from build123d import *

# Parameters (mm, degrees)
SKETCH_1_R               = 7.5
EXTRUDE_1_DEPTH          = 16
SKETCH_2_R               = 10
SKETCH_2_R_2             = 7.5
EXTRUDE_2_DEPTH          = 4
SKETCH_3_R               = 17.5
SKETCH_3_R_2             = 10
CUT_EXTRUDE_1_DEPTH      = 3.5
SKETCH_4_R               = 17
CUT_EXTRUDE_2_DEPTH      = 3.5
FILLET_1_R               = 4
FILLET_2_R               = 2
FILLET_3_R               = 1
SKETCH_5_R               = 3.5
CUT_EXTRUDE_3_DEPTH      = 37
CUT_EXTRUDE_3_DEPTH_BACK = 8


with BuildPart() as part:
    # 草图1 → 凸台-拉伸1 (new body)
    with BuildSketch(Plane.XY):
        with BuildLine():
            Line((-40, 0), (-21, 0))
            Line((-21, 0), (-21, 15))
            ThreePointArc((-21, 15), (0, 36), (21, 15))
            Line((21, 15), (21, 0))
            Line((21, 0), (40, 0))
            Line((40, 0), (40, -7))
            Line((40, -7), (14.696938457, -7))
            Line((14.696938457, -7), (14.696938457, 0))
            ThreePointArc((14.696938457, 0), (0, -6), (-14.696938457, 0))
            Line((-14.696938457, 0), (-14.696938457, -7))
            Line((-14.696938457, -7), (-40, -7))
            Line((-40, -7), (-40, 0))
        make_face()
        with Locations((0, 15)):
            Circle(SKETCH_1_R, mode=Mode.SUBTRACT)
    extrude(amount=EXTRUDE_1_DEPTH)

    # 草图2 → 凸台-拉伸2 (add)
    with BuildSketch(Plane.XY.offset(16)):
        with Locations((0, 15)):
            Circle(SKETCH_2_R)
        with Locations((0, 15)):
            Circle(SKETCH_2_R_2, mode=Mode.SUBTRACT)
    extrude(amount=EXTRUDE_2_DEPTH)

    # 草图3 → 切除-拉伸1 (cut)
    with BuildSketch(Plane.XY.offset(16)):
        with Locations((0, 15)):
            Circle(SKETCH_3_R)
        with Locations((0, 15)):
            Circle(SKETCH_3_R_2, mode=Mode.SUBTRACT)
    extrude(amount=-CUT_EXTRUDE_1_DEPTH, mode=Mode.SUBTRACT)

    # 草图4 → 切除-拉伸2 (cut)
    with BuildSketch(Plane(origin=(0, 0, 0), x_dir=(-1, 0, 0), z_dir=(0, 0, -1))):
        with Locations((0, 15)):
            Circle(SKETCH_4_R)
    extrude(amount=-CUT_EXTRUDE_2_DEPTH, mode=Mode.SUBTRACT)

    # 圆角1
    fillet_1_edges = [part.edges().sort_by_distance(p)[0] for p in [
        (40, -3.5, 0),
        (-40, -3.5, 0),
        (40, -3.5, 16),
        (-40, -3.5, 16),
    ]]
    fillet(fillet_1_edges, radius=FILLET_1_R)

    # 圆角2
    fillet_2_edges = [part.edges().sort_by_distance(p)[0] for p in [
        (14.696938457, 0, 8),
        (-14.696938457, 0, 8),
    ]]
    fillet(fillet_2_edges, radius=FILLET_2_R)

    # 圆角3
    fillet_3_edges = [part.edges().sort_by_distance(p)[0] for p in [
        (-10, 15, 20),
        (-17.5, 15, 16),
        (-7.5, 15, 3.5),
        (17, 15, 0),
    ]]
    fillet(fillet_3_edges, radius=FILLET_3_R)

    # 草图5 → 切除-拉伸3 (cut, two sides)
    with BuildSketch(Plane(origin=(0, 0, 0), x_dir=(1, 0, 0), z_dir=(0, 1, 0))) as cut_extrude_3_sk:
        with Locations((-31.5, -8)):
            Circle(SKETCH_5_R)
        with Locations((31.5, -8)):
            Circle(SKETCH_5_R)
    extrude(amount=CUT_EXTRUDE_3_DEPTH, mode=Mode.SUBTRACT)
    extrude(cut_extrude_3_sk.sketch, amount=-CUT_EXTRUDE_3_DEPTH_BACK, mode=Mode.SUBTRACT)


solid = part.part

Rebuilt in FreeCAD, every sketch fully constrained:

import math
import FreeCAD as App
import Part
import Sketcher


def edges_at(feature, points):
    """Names of the edges that pass closest to the given points."""
    edges = feature.Shape.Edges
    near = lambda p: min(range(len(edges)), key=lambda i: edges[i].distToShape(Part.Vertex(*p))[0])
    return sorted({f"Edge{near(p) + 1}" for p in points})

doc = App.newDocument("Part")
body = doc.addObject("PartDesign::Body", "Body")

# Sketch on XY plane
sketch1 = body.newObject("Sketcher::SketchObject", "Sketch")
sketch1.AttachmentSupport = (doc.getObject("XY_Plane"), [""])
sketch1.MapMode = "FlatFace"
sketch1.addGeometry(Part.LineSegment(App.Vector(-21, 0, 0), App.Vector(-40, 0, 0)), False)
sketch1.addGeometry(Part.LineSegment(App.Vector(-40, 0, 0), App.Vector(-40, -7, 0)), False)
sketch1.addGeometry(Part.LineSegment(App.Vector(-40, -7, 0), App.Vector(-15, -7, 0)), False)
sketch1.addGeometry(Part.LineSegment(App.Vector(-15, -7, 0), App.Vector(-15, 0, 0)), False)
sketch1.addGeometry(Part.ArcOfCircle(Part.Circle(App.Vector(0, 15, 0), App.Vector(0, 0, 1), 21), math.radians(-134), math.radians(-46)), False)
sketch1.addGeometry(Part.LineSegment(App.Vector(15, 0, 0), App.Vector(15, -7, 0)), False)
sketch1.addGeometry(Part.LineSegment(App.Vector(15, -7, 0), App.Vector(40, -7, 0)), False)
sketch1.addGeometry(Part.LineSegment(App.Vector(40, -7, 0), App.Vector(40, 0, 0)), False)
sketch1.addGeometry(Part.LineSegment(App.Vector(40, 0, 0), App.Vector(21, 0, 0)), False)
sketch1.addGeometry(Part.LineSegment(App.Vector(21, 0, 0), App.Vector(21, 15, 0)), False)
sketch1.addGeometry(Part.ArcOfCircle(Part.Circle(App.Vector(0, 15, 0), App.Vector(0, 0, 1), 21), math.radians(0), math.radians(180)), False)
sketch1.addGeometry(Part.LineSegment(App.Vector(-21, 15, 0), App.Vector(-21, 0, 0)), False)
sketch1.addGeometry(Part.Circle(App.Vector(0, 15, 0), App.Vector(0, 0, 1), 8), False)
sketch1.addConstraint(Sketcher.Constraint("Coincident", 0, 2, 1, 1))
sketch1.addConstraint(Sketcher.Constraint("Coincident", 1, 2, 2, 1))
sketch1.addConstraint(Sketcher.Constraint("Coincident", 2, 2, 3, 1))
sketch1.addConstraint(Sketcher.Constraint("Coincident", 3, 2, 4, 1))
sketch1.addConstraint(Sketcher.Constraint("Coincident", 4, 2, 5, 1))
sketch1.addConstraint(Sketcher.Constraint("Coincident", 5, 2, 6, 1))
sketch1.addConstraint(Sketcher.Constraint("Coincident", 6, 2, 7, 1))
sketch1.addConstraint(Sketcher.Constraint("Coincident", 7, 2, 8, 1))
sketch1.addConstraint(Sketcher.Constraint("Coincident", 8, 2, 9, 1))
sketch1.addConstraint(Sketcher.Constraint("Tangent", 9, 2, 10, 1))
sketch1.addConstraint(Sketcher.Constraint("Tangent", 10, 2, 11, 1))
sketch1.addConstraint(Sketcher.Constraint("Coincident", 11, 2, 0, 1))
sketch1.addConstraint(Sketcher.Constraint("Horizontal", 0))
sketch1.addConstraint(Sketcher.Constraint("Vertical", 1))
sketch1.addConstraint(Sketcher.Constraint("Horizontal", 2))
sketch1.addConstraint(Sketcher.Constraint("Vertical", 3))
sketch1.addConstraint(Sketcher.Constraint("Vertical", 5))
sketch1.addConstraint(Sketcher.Constraint("Horizontal", 6))
sketch1.addConstraint(Sketcher.Constraint("Vertical", 7))
sketch1.addConstraint(Sketcher.Constraint("Horizontal", 8))
sketch1.addConstraint(Sketcher.Constraint("Vertical", 9))
sketch1.addConstraint(Sketcher.Constraint("Vertical", 11))
sketch1.addConstraint(Sketcher.Constraint("Coincident", 10, 3, 4, 3))
sketch1.addConstraint(Sketcher.Constraint("Coincident", 12, 3, 4, 3))
sketch1.addConstraint(Sketcher.Constraint("Equal", 4, 10))
sketch1.addConstraint(Sketcher.Constraint("Symmetric", 3, 2, 4, 2, -1, 1))
sketch1.addConstraint(Sketcher.Constraint("Symmetric", 0, 2, 7, 2, -1, 1))
sketch1.addConstraint(Sketcher.Constraint("Symmetric", 8, 2, 11, 2, -2))
sketch1.addConstraint(Sketcher.Constraint("Horizontal", 2, 2, 5, 2))
sketch1.addConstraint(Sketcher.Constraint("Diameter", 12, 15.0))
sketch1.addConstraint(Sketcher.Constraint("Radius", 4, 21.0))
sketch1.addConstraint(Sketcher.Constraint("DistanceX", 0, 2, 0, 1, 19.0))
sketch1.addConstraint(Sketcher.Constraint("DistanceY", 1, 2, 1, 1, 7.0))
sketch1.addConstraint(Sketcher.Constraint("DistanceY", 9, 1, 9, 2, 15.0))
pad1 = body.newObject("PartDesign::Pad", "Pad")
pad1.Profile = sketch1
pad1.Length = 16

# Sketch on XY plane
sketch2 = body.newObject("Sketcher::SketchObject", "Sketch001")
sketch2.AttachmentSupport = (doc.getObject("XY_Plane"), [""])
sketch2.MapMode = "FlatFace"
sketch2.AttachmentOffset = App.Placement(App.Vector(0, 0, 16), App.Rotation())
sketch2.addGeometry(Part.Circle(App.Vector(0, 15, 0), App.Vector(0, 0, 1), 10), False)
sketch2.addGeometry(Part.Circle(App.Vector(0, 15, 0), App.Vector(0, 0, 1), 8), False)
sketch2.addConstraint(Sketcher.Constraint("Coincident", 1, 3, 0, 3))
sketch2.addConstraint(Sketcher.Constraint("PointOnObject", 0, 3, -2))
sketch2.addConstraint(Sketcher.Constraint("Diameter", 0, 20.0))
sketch2.addConstraint(Sketcher.Constraint("Diameter", 1, 15.0))
sketch2.addConstraint(Sketcher.Constraint("DistanceY", -1, 1, 0, 3, 15.0))
pad2 = body.newObject("PartDesign::Pad", "Pad001")
pad2.Profile = sketch2
pad2.Length = 4

# Sketch on XY plane
sketch3 = body.newObject("Sketcher::SketchObject", "Sketch002")
sketch3.AttachmentSupport = (doc.getObject("XY_Plane"), [""])
sketch3.MapMode = "FlatFace"
sketch3.AttachmentOffset = App.Placement(App.Vector(0, 0, 16), App.Rotation())
sketch3.addGeometry(Part.Circle(App.Vector(0, 15, 0), App.Vector(0, 0, 1), 18), False)
sketch3.addGeometry(Part.Circle(App.Vector(0, 15, 0), App.Vector(0, 0, 1), 10), False)
sketch3.addConstraint(Sketcher.Constraint("Coincident", 1, 3, 0, 3))
sketch3.addConstraint(Sketcher.Constraint("PointOnObject", 0, 3, -2))
sketch3.addConstraint(Sketcher.Constraint("Diameter", 0, 35.0))
sketch3.addConstraint(Sketcher.Constraint("Diameter", 1, 20.0))
sketch3.addConstraint(Sketcher.Constraint("DistanceY", -1, 1, 0, 3, 15.0))
pocket1 = body.newObject("PartDesign::Pocket", "Pocket")
pocket1.Profile = sketch3
pocket1.Length = 3.5

# Sketch on XY plane
sketch4 = body.newObject("Sketcher::SketchObject", "Sketch003")
sketch4.AttachmentSupport = (doc.getObject("XY_Plane"), [""])
sketch4.MapMode = "FlatFace"
sketch4.addGeometry(Part.Circle(App.Vector(0, 15, 0), App.Vector(0, 0, 1), 17), False)
sketch4.addConstraint(Sketcher.Constraint("PointOnObject", 0, 3, -2))
sketch4.addConstraint(Sketcher.Constraint("Diameter", 0, 34.0))
sketch4.addConstraint(Sketcher.Constraint("DistanceY", -1, 1, 0, 3, 15.0))
pocket2 = body.newObject("PartDesign::Pocket", "Pocket001")
pocket2.Profile = sketch4
pocket2.Length = 3.5
pocket2.Reversed = True
doc.recompute()

fillet = body.newObject("PartDesign::Fillet", "Fillet")
fillet.Base = (pocket2, edges_at(pocket2, [
    (40, -3.5, 0),
    (-40, -3.5, 0),
    (40, -3.5, 16),
    (-40, -3.5, 16),
]))
fillet.Radius = 4
doc.recompute()

fillet2 = body.newObject("PartDesign::Fillet", "Fillet001")
fillet2.Base = (fillet, edges_at(fillet, [(14.697, 0, 8), (-14.697, 0, 8)]))
fillet2.Radius = 2
doc.recompute()

fillet3 = body.newObject("PartDesign::Fillet", "Fillet002")
fillet3.Base = (fillet2, edges_at(fillet2, [
    (-10, 15, 20),
    (-17.5, 15, 16),
    (-7.5, 15, 3.5),
    (17, 15, 0),
]))
fillet3.Radius = 1

# Sketch on XZ plane
sketch5 = body.newObject("Sketcher::SketchObject", "Sketch004")
sketch5.AttachmentSupport = (doc.getObject("XZ_Plane"), [""])
sketch5.MapMode = "FlatFace"
sketch5.addGeometry(Part.Circle(App.Vector(-31.5, 8, 0), App.Vector(0, 0, 1), 3.5), False)
sketch5.addGeometry(Part.Circle(App.Vector(31.5, 8, 0), App.Vector(0, 0, 1), 3.5), False)
sketch5.addConstraint(Sketcher.Constraint("Equal", 0, 1))
sketch5.addConstraint(Sketcher.Constraint("Symmetric", 0, 3, 1, 3, -2))
sketch5.addConstraint(Sketcher.Constraint("Diameter", 0, 7.0))
sketch5.addConstraint(Sketcher.Constraint("DistanceY", -1, 1, 0, 3, 8.0))
sketch5.addConstraint(Sketcher.Constraint("DistanceX", 0, 3, 1, 3, 63.0))
pocket3 = body.newObject("PartDesign::Pocket", "Pocket002")
pocket3.Profile = sketch5
pocket3.Type = "ThroughAll"
pocket3.Midplane = True

doc.recompute()
